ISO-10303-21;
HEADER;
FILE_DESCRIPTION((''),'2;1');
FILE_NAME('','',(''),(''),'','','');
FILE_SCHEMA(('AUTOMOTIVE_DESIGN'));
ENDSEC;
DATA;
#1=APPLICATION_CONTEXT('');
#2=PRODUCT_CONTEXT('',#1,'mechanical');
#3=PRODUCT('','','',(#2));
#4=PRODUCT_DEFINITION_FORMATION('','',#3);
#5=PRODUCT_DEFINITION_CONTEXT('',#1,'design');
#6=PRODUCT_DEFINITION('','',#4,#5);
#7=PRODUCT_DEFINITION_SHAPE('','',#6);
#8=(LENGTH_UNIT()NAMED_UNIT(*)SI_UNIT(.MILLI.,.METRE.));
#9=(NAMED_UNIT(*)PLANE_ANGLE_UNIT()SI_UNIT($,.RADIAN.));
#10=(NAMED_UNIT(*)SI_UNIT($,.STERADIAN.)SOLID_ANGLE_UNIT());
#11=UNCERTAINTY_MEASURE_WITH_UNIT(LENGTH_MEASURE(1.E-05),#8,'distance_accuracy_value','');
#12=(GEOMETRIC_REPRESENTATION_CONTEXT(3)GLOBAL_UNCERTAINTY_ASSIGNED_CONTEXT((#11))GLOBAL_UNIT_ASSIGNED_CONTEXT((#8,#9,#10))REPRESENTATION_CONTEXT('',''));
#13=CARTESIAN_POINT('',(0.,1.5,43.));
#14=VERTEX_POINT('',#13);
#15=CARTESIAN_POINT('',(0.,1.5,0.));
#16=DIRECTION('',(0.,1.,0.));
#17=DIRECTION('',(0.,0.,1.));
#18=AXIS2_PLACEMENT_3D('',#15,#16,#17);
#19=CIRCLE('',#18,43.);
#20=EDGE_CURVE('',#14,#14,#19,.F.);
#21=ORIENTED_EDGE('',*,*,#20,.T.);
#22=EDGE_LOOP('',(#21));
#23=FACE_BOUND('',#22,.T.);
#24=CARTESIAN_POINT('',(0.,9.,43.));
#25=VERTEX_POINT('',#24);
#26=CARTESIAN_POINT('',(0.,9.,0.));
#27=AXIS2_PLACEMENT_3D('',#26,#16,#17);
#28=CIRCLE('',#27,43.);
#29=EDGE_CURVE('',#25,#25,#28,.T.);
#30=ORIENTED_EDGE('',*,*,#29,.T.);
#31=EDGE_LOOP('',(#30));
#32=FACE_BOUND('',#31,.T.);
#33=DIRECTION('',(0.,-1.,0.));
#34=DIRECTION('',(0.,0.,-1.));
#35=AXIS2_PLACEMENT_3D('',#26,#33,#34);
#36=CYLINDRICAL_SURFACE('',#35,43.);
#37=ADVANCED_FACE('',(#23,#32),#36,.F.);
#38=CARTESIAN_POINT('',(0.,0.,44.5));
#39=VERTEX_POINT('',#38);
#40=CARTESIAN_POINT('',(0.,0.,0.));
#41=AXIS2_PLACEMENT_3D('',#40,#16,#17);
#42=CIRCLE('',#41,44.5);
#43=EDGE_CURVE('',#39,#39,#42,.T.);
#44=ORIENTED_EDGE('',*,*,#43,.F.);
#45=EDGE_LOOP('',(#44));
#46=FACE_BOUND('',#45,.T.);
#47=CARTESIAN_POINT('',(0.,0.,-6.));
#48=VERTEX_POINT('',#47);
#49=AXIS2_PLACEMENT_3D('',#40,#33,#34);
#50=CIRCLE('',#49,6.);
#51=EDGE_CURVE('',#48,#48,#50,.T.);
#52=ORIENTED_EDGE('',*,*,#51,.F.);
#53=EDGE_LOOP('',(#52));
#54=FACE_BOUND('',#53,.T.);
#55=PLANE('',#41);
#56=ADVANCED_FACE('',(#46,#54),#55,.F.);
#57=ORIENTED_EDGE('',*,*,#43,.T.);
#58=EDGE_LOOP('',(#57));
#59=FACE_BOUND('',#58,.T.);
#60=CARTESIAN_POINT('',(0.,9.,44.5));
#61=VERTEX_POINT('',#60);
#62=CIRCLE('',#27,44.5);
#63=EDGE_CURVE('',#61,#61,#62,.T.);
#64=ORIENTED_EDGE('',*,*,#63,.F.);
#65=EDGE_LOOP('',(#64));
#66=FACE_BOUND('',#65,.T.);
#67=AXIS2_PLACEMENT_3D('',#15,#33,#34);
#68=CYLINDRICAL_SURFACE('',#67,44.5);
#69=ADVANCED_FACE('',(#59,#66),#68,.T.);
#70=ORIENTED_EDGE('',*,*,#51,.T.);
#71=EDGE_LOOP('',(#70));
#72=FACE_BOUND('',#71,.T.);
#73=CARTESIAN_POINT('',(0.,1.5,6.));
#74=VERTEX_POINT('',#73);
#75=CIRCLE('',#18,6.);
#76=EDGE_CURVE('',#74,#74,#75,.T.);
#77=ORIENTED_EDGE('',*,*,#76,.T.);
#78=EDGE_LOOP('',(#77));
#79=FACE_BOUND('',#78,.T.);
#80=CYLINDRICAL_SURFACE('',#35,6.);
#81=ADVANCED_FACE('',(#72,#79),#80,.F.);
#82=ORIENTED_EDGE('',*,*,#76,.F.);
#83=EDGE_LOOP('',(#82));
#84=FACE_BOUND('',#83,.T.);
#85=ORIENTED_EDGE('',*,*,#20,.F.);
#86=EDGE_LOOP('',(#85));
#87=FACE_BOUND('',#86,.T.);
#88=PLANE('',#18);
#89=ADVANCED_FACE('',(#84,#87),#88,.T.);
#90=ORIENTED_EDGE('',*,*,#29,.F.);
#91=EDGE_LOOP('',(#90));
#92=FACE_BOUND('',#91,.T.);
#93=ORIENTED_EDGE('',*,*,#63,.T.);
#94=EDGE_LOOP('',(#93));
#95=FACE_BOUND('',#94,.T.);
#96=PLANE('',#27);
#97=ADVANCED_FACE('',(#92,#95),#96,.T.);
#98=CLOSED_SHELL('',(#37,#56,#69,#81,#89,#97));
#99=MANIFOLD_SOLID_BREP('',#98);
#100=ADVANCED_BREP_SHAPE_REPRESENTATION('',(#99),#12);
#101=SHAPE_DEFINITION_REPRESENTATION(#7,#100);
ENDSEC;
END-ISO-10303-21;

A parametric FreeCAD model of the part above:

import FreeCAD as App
import Part
import Sketcher
from FreeCAD import Vector
Q = App.Units.Quantity

doc = App.newDocument("Part")
body = doc.addObject("PartDesign::Body", "Body")

sketch1 = body.newObject("Sketcher::SketchObject", "Sketch")
sketch1.AttachmentSupport = (doc.getObject("XZ_Plane"), [""])
sketch1.MapMode = "FlatFace"
sketch1.addGeometry(Part.Circle(Vector(0, 0, 0), Vector(0, 0, 1), 44), False)
sketch1.addConstraint(Sketcher.Constraint("Coincident", 0, 3, -1, 1))
sketch1.addConstraint(Sketcher.Constraint("Diameter", 0, Q("89 mm")))
pad1 = body.newObject("PartDesign::Pad", "Pad")
pad1.Profile = sketch1
pad1.Length = 1.5
pad1.Reversed = True

sketch2 = body.newObject("Sketcher::SketchObject", "Sketch001")
sketch2.AttachmentSupport = (doc.getObject("XZ_Plane"), [""])
sketch2.MapMode = "FlatFace"
sketch2.AttachmentOffset = App.Placement(Vector(0, 0, -1.5), App.Rotation())
sketch2.addGeometry(Part.Circle(Vector(0, 0, 0), Vector(0, 0, 1), 44), False)
sketch2.addGeometry(Part.Circle(Vector(0, 0, 0), Vector(0, 0, 1), 43), False)
sketch2.addConstraint(Sketcher.Constraint("Coincident", 0, 3, -1, 1))
sketch2.addConstraint(Sketcher.Constraint("Coincident", 1, 3, -1, 1))
sketch2.addConstraint(Sketcher.Constraint("Diameter", 0, Q("89 mm")))
sketch2.addConstraint(Sketcher.Constraint("Diameter", 1, Q("86 mm")))
pad2 = body.newObject("PartDesign::Pad", "Pad001")
pad2.Profile = sketch2
pad2.Length = 7.5
pad2.Reversed = True

sketch3 = body.newObject("Sketcher::SketchObject", "Sketch002")
sketch3.AttachmentSupport = (doc.getObject("XZ_Plane"), [""])
sketch3.MapMode = "FlatFace"
sketch3.addGeometry(Part.Circle(Vector(0, 0, 0), Vector(0, 0, 1), 6), False)
sketch3.addConstraint(Sketcher.Constraint("Coincident", 0, 3, -1, 1))
sketch3.addConstraint(Sketcher.Constraint("Diameter", 0, Q("12 mm")))
pocket1 = body.newObject("PartDesign::Pocket", "Pocket")
pocket1.Profile = sketch3
pocket1.Type = "ThroughAll"

doc.recompute()
